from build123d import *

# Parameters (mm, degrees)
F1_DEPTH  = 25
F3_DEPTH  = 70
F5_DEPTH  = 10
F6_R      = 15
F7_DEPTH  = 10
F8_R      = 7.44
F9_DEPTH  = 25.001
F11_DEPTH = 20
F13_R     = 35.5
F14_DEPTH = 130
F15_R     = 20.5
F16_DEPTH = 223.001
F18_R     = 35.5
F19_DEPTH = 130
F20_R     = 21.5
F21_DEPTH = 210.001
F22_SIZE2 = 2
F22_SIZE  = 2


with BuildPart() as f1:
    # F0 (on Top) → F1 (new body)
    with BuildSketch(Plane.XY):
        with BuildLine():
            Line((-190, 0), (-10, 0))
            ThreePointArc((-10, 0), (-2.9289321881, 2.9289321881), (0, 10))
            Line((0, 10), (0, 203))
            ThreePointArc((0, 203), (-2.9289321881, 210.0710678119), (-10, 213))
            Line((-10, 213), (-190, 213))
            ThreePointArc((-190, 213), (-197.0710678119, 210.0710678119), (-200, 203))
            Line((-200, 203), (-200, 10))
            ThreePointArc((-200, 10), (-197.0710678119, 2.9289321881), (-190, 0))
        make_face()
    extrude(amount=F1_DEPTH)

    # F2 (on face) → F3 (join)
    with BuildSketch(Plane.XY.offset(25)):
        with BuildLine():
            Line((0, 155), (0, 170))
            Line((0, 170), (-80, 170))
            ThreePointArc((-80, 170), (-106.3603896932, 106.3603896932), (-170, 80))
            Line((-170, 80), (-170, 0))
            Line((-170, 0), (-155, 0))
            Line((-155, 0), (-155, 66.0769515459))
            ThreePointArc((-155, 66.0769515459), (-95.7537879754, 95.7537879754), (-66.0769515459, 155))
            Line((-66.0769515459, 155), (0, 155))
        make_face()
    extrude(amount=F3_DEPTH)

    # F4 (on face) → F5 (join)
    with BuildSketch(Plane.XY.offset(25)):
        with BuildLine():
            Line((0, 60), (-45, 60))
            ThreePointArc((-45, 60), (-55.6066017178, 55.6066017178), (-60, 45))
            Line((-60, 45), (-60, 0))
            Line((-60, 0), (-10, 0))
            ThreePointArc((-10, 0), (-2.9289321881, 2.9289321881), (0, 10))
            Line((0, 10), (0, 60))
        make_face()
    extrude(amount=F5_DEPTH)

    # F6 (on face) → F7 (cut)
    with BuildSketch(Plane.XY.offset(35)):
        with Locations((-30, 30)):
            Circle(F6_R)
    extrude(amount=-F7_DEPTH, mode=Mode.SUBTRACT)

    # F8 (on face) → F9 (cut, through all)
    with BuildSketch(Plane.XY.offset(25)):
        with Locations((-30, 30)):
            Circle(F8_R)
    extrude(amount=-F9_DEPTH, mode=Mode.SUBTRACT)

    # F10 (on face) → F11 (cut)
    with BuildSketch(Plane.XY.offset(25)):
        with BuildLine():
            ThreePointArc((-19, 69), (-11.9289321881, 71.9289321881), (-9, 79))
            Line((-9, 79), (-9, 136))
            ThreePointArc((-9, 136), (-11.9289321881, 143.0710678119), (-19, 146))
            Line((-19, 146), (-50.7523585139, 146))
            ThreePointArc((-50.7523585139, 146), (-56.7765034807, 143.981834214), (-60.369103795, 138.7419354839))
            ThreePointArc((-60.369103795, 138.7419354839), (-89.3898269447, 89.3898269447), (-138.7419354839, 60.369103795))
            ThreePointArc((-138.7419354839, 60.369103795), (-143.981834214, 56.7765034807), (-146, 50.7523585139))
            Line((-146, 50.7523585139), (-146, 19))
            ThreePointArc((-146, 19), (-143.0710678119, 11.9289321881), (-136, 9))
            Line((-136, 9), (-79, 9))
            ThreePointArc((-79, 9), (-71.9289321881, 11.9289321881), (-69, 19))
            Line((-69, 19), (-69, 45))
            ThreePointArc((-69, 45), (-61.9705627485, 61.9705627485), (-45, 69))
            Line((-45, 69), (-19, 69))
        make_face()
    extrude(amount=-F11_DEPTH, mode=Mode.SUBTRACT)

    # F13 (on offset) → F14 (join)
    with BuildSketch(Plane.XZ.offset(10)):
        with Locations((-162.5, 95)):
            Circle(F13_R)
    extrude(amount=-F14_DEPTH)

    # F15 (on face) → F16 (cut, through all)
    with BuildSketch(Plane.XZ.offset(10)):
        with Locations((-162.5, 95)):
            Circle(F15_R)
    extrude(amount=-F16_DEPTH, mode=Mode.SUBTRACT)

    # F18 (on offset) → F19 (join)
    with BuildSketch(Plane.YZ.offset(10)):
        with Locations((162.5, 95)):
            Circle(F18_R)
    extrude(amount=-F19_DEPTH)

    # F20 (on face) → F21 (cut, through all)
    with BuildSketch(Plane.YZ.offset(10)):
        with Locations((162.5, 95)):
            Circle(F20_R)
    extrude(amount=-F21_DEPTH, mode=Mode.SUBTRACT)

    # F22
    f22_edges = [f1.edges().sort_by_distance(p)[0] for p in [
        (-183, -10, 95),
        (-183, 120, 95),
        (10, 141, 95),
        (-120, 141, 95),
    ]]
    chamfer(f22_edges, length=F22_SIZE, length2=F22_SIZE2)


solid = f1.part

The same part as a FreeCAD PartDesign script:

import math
import FreeCAD as App
import Part
import Sketcher

V = App.Vector


def edges_at(feature, points):
    """Names of the edges that pass closest to the given points."""
    edges = feature.Shape.Edges
    near = lambda p: min(range(len(edges)), key=lambda i: edges[i].distToShape(Part.Vertex(*p))[0])
    return sorted({f"Edge{near(p) + 1}" for p in points})

doc = App.newDocument("Part")
body = doc.addObject("PartDesign::Body", "Body")

# Sketch on XY plane
sketch1 = body.newObject("Sketcher::SketchObject", "Sketch")
sketch1.AttachmentSupport = (doc.getObject("XY_Plane"), [""])
sketch1.MapMode = "FlatFace"
sketch1.addGeometry([
    Part.LineSegment(V(-190, 0, 0), V(-10, 0, 0)),  # 0
    Part.ArcOfCircle(Part.Circle(V(-10, 10, 0), V(0, 0, 1), 10), math.radians(-90), math.radians(0)),  # 1
    Part.LineSegment(V(0, 10, 0), V(0, 203, 0)),  # 2
    Part.ArcOfCircle(Part.Circle(V(-10, 203, 0), V(0, 0, 1), 10), math.radians(0), math.radians(90)),  # 3
    Part.LineSegment(V(-10, 213, 0), V(-190, 213, 0)),  # 4
    Part.ArcOfCircle(Part.Circle(V(-190, 203, 0), V(0, 0, 1), 10), math.radians(90), math.radians(180)),  # 5
    Part.LineSegment(V(-200, 203, 0), V(-200, 10, 0)),  # 6
    Part.ArcOfCircle(Part.Circle(V(-190, 10, 0), V(0, 0, 1), 10), math.radians(180), math.radians(270)),  # 7
], False)
sketch1.addConstraint([
    Sketcher.Constraint("Tangent", 0, 2, 1, 1),
    Sketcher.Constraint("Tangent", 1, 2, 2, 1),
    Sketcher.Constraint("Tangent", 2, 2, 3, 1),
    Sketcher.Constraint("Tangent", 3, 2, 4, 1),
    Sketcher.Constraint("Tangent", 4, 2, 5, 1),
    Sketcher.Constraint("Tangent", 5, 2, 6, 1),
    Sketcher.Constraint("Tangent", 6, 2, 7, 1),
    Sketcher.Constraint("Tangent", 7, 2, 0, 1),
    Sketcher.Constraint("Horizontal", 0),
    Sketcher.Constraint("Vertical", 2),
    Sketcher.Constraint("Horizontal", 4),
    Sketcher.Constraint("Vertical", 6),
    Sketcher.Constraint("Equal", 1, 3),
    Sketcher.Constraint("Equal", 3, 5),
    Sketcher.Constraint("Equal", 5, 7),
    Sketcher.Constraint("PointOnObject", 0, 2, -1),
    Sketcher.Constraint("PointOnObject", 1, 2, -2),
    Sketcher.Constraint("Radius", 1, 10.0),
    Sketcher.Constraint("DistanceX", 0, 1, 0, 2, 180.0),
    Sketcher.Constraint("DistanceY", 2, 1, 2, 2, 193.0),
])
pad1 = body.newObject("PartDesign::Pad", "Pad")
pad1.Profile = sketch1
pad1.Length = 25

# Sketch on XY plane
sketch2 = body.newObject("Sketcher::SketchObject", "Sketch001")
sketch2.AttachmentSupport = (doc.getObject("XY_Plane"), [""])
sketch2.MapMode = "FlatFace"
sketch2.AttachmentOffset = App.Placement(V(0, 0, 25), App.Rotation())
sketch2.addGeometry([
    Part.LineSegment(V(0, 155, 0), V(0, 170, 0)),  # 0
    Part.LineSegment(V(0, 170, 0), V(-80, 170, 0)),  # 1
    Part.ArcOfCircle(Part.Circle(V(-170, 170, 0), V(0, 0, 1), 90), math.radians(-90), math.radians(0)),  # 2
    Part.LineSegment(V(-170, 80, 0), V(-170, 0, 0)),  # 3
    Part.LineSegment(V(-170, 0, 0), V(-155, 0, 0)),  # 4
    Part.LineSegment(V(-155, 0, 0), V(-155, 66, 0)),  # 5
    Part.ArcOfCircle(Part.Circle(V(-170, 170, 0), V(0, 0, 1), 105), math.radians(-82), math.radians(-8)),  # 6
    Part.LineSegment(V(-66, 155, 0), V(0, 155, 0)),  # 7
], False)
sketch2.addConstraint([
    Sketcher.Constraint("Coincident", 0, 2, 1, 1),
    Sketcher.Constraint("Coincident", 1, 2, 2, 2),
    Sketcher.Constraint("Coincident", 2, 1, 3, 1),
    Sketcher.Constraint("Coincident", 3, 2, 4, 1),
    Sketcher.Constraint("Coincident", 4, 2, 5, 1),
    Sketcher.Constraint("Coincident", 5, 2, 6, 1),
    Sketcher.Constraint("Coincident", 6, 2, 7, 1),
    Sketcher.Constraint("Coincident", 7, 2, 0, 1),
    Sketcher.Constraint("Vertical", 0),
    Sketcher.Constraint("Horizontal", 1),
    Sketcher.Constraint("Vertical", 3),
    Sketcher.Constraint("Horizontal", 4),
    Sketcher.Constraint("Vertical", 5),
    Sketcher.Constraint("Horizontal", 7),
    Sketcher.Constraint("Coincident", 6, 3, 2, 3),
    Sketcher.Constraint("PointOnObject", 0, 2, -2),
    Sketcher.Constraint("PointOnObject", 3, 2, -1),
    Sketcher.Constraint("Horizontal", 6, 3, 0, 2),
    Sketcher.Constraint("Vertical", 6, 3, 2, 1),
    Sketcher.Constraint("Equal", 4, 0),
    Sketcher.Constraint("Equal", 1, 3),
    Sketcher.Constraint("Radius", 2, 90.0),
    Sketcher.Constraint("Radius", 6, 105.0),
    Sketcher.Constraint("DistanceX", 1, 2, 1, 1, 80.0),
    Sketcher.Constraint("DistanceX", 4, 1, 4, 2, 15.0),
])
pad2 = body.newObject("PartDesign::Pad", "Pad001")
pad2.Profile = sketch2
pad2.Length = 70

# Sketch on XY plane
sketch3 = body.newObject("Sketcher::SketchObject", "Sketch002")
sketch3.AttachmentSupport = (doc.getObject("XY_Plane"), [""])
sketch3.MapMode = "FlatFace"
sketch3.AttachmentOffset = App.Placement(V(0, 0, 25), App.Rotation())
sketch3.addGeometry([
    Part.LineSegment(V(0, 60, 0), V(-45, 60, 0)),  # 0
    Part.ArcOfCircle(Part.Circle(V(-45, 45, 0), V(0, 0, 1), 15), math.radians(90), math.radians(180)),  # 1
    Part.LineSegment(V(-60, 45, 0), V(-60, 0, 0)),  # 2
    Part.LineSegment(V(-60, 0, 0), V(-10, 0, 0)),  # 3
    Part.ArcOfCircle(Part.Circle(V(-10, 10, 0), V(0, 0, 1), 10), math.radians(-90), math.radians(0)),  # 4
    Part.LineSegment(V(0, 10, 0), V(0, 60, 0)),  # 5
], False)
sketch3.addConstraint([
    Sketcher.Constraint("Tangent", 0, 2, 1, 1),
    Sketcher.Constraint("Tangent", 1, 2, 2, 1),
    Sketcher.Constraint("Coincident", 2, 2, 3, 1),
    Sketcher.Constraint("Tangent", 3, 2, 4, 1),
    Sketcher.Constraint("Tangent", 4, 2, 5, 1),
    Sketcher.Constraint("Coincident", 5, 2, 0, 1),
    Sketcher.Constraint("Horizontal", 0),
    Sketcher.Constraint("Vertical", 2),
    Sketcher.Constraint("Horizontal", 3),
    Sketcher.Constraint("Vertical", 5),
    Sketcher.Constraint("PointOnObject", 2, 2, -1),
    Sketcher.Constraint("PointOnObject", 4, 2, -2),
    Sketcher.Constraint("Equal", 0, 2),
    Sketcher.Constraint("Radius", 1, 15.0),
    Sketcher.Constraint("Radius", 4, 10.0),
    Sketcher.Constraint("DistanceX", 0, 2, 0, 1, 45.0),
])
pad3 = body.newObject("PartDesign::Pad", "Pad002")
pad3.Profile = sketch3
pad3.Length = 10

# Sketch on XY plane
sketch4 = body.newObject("Sketcher::SketchObject", "Sketch003")
sketch4.AttachmentSupport = (doc.getObject("XY_Plane"), [""])
sketch4.MapMode = "FlatFace"
sketch4.AttachmentOffset = App.Placement(V(0, 0, 35), App.Rotation())
sketch4.addGeometry(Part.Circle(V(-30, 30, 0), V(0, 0, 1), 15), False)
sketch4.addConstraint([
    Sketcher.Constraint("Diameter", 0, 30.0),
    Sketcher.Constraint("DistanceX", 0, 3, -1, 1, 30.0),
    Sketcher.Constraint("DistanceY", -1, 1, 0, 3, 30.0),
])
pocket1 = body.newObject("PartDesign::Pocket", "Pocket")
pocket1.Profile = sketch4
pocket1.Length = 10

# Sketch on XY plane
sketch5 = body.newObject("Sketcher::SketchObject", "Sketch004")
sketch5.AttachmentSupport = (doc.getObject("XY_Plane"), [""])
sketch5.MapMode = "FlatFace"
sketch5.AttachmentOffset = App.Placement(V(0, 0, 25), App.Rotation())
sketch5.addGeometry(Part.Circle(V(-30, 30, 0), V(0, 0, 1), 7), False)
sketch5.addConstraint([
    Sketcher.Constraint("Diameter", 0, 14.88),
    Sketcher.Constraint("DistanceX", 0, 3, -1, 1, 30.0),
    Sketcher.Constraint("DistanceY", -1, 1, 0, 3, 30.0),
])
pocket2 = body.newObject("PartDesign::Pocket", "Pocket001")
pocket2.Profile = sketch5
pocket2.Type = "ThroughAll"

# Sketch on XY plane
sketch6 = body.newObject("Sketcher::SketchObject", "Sketch005")
sketch6.AttachmentSupport = (doc.getObject("XY_Plane"), [""])
sketch6.MapMode = "FlatFace"
sketch6.AttachmentOffset = App.Placement(V(0, 0, 25), App.Rotation())
sketch6.addGeometry([
    Part.ArcOfCircle(Part.Circle(V(-19, 79, 0), V(0, 0, 1), 10), math.radians(-90), math.radians(0)),  # 0
    Part.LineSegment(V(-9, 79, 0), V(-9, 136, 0)),  # 1
    Part.ArcOfCircle(Part.Circle(V(-19, 136, 0), V(0, 0, 1), 10), math.radians(0), math.radians(90)),  # 2
    Part.LineSegment(V(-19, 146, 0), V(-51, 146, 0)),  # 3
    Part.ArcOfCircle(Part.Circle(V(-51, 136, 0), V(0, 0, 1), 10), math.radians(90), math.radians(164)),  # 4
    Part.ArcOfCircle(Part.Circle(V(-170, 170, 0), V(0, 0, 1), 114), math.radians(-74), math.radians(-16)),  # 5
    Part.ArcOfCircle(Part.Circle(V(-136, 51, 0), V(0, 0, 1), 10), math.radians(106), math.radians(180)),  # 6
    Part.LineSegment(V(-146, 51, 0), V(-146, 19, 0)),  # 7
    Part.ArcOfCircle(Part.Circle(V(-136, 19, 0), V(0, 0, 1), 10), math.radians(180), math.radians(270)),  # 8
    Part.LineSegment(V(-136, 9, 0), V(-79, 9, 0)),  # 9
    Part.ArcOfCircle(Part.Circle(V(-79, 19, 0), V(0, 0, 1), 10), math.radians(-90), math.radians(0)),  # 10
    Part.LineSegment(V(-69, 19, 0), V(-69, 45, 0)),  # 11
    Part.ArcOfCircle(Part.Circle(V(-45, 45, 0), V(0, 0, 1), 24), math.radians(90), math.radians(180)),  # 12
    Part.LineSegment(V(-45, 69, 0), V(-19, 69, 0)),  # 13
], False)
sketch6.addConstraint([
    Sketcher.Constraint("Tangent", 0, 2, 1, 1),
    Sketcher.Constraint("Tangent", 1, 2, 2, 1),
    Sketcher.Constraint("Tangent", 2, 2, 3, 1),
    Sketcher.Constraint("Tangent", 3, 2, 4, 1),
    Sketcher.Constraint("Tangent", 4, 2, 5, 2),
    Sketcher.Constraint("Tangent", 5, 1, 6, 1),
    Sketcher.Constraint("Tangent", 6, 2, 7, 1),
    Sketcher.Constraint("Tangent", 7, 2, 8, 1),
    Sketcher.Constraint("Tangent", 8, 2, 9, 1),
    Sketcher.Constraint("Tangent", 9, 2, 10, 1),
    Sketcher.Constraint("Tangent", 10, 2, 11, 1),
    Sketcher.Constraint("Tangent", 11, 2, 12, 2),
    Sketcher.Constraint("Tangent", 12, 1, 13, 1),
    Sketcher.Constraint("Tangent", 13, 2, 0, 1),
    Sketcher.Constraint("Vertical", 1),
    Sketcher.Constraint("Horizontal", 3),
    Sketcher.Constraint("Vertical", 7),
    Sketcher.Constraint("Horizontal", 9),
    Sketcher.Constraint("Vertical", 11),
    Sketcher.Constraint("Horizontal", 13),
    Sketcher.Constraint("Equal", 0, 2),
    Sketcher.Constraint("Equal", 2, 4),
    Sketcher.Constraint("Equal", 4, 6),
    Sketcher.Constraint("Equal", 6, 8),
    Sketcher.Constraint("Equal", 8, 10),
    Sketcher.Constraint("Equal", 9, 1),
    Sketcher.Constraint("Equal", 3, 7),
    Sketcher.Constraint("Equal", 13, 11),
    Sketcher.Constraint("Radius", 0, 10.0),
    Sketcher.Constraint("Radius", 5, 114.0),
    Sketcher.Constraint("Radius", 12, 24.0),
    Sketcher.Constraint("DistanceX", 9, 1, 9, 2, 57.0),
    Sketcher.Constraint("DistanceX", 13, 1, 13, 2, 26.0),
    Sketcher.Constraint("DistanceX", 0, 3, -1, 1, 19.0),
    Sketcher.Constraint("DistanceY", -1, 1, 0, 3, 79.0),
    Sketcher.Constraint("DistanceX", 5, 3, -1, 1, 170.0),
])
pocket3 = body.newObject("PartDesign::Pocket", "Pocket002")
pocket3.Profile = sketch6
pocket3.Length = 20

# Sketch on XZ plane
sketch7 = body.newObject("Sketcher::SketchObject", "Sketch006")
sketch7.AttachmentSupport = (doc.getObject("XZ_Plane"), [""])
sketch7.MapMode = "FlatFace"
sketch7.AttachmentOffset = App.Placement(V(0, 0, 10), App.Rotation())
sketch7.addGeometry(Part.Circle(V(-162, 95, 0), V(0, 0, 1), 36), False)
sketch7.addConstraint([
    Sketcher.Constraint("Diameter", 0, 71.0),
    Sketcher.Constraint("DistanceY", -1, 1, 0, 3, 95.0),
    Sketcher.Constraint("DistanceX", 0, 3, -1, 1, 162.5),
])
pad4 = body.newObject("PartDesign::Pad", "Pad003")
pad4.Profile = sketch7
pad4.Length = 130
pad4.Reversed = True

# Sketch on XZ plane
sketch8 = body.newObject("Sketcher::SketchObject", "Sketch007")
sketch8.AttachmentSupport = (doc.getObject("XZ_Plane"), [""])
sketch8.MapMode = "FlatFace"
sketch8.AttachmentOffset = App.Placement(V(0, 0, 10), App.Rotation())
sketch8.addGeometry(Part.Circle(V(-162, 95, 0), V(0, 0, 1), 20), False)
sketch8.addConstraint([
    Sketcher.Constraint("Diameter", 0, 41.0),
    Sketcher.Constraint("DistanceY", -1, 1, 0, 3, 95.0),
    Sketcher.Constraint("DistanceX", 0, 3, -1, 1, 162.5),
])
pocket4 = body.newObject("PartDesign::Pocket", "Pocket003")
pocket4.Profile = sketch8
pocket4.Type = "ThroughAll"

# Sketch on YZ plane
sketch9 = body.newObject("Sketcher::SketchObject", "Sketch008")
sketch9.AttachmentSupport = (doc.getObject("YZ_Plane"), [""])
sketch9.MapMode = "FlatFace"
sketch9.AttachmentOffset = App.Placement(V(0, 0, 10), App.Rotation())
sketch9.addGeometry(Part.Circle(V(162, 95, 0), V(0, 0, 1), 36), False)
sketch9.addConstraint([
    Sketcher.Constraint("Diameter", 0, 71.0),
    Sketcher.Constraint("DistanceY", -1, 1, 0, 3, 95.0),
    Sketcher.Constraint("DistanceX", -1, 1, 0, 3, 162.5),
])
pad5 = body.newObject("PartDesign::Pad", "Pad004")
pad5.Profile = sketch9
pad5.Length = 130
pad5.Reversed = True

# Sketch on YZ plane
sketch10 = body.newObject("Sketcher::SketchObject", "Sketch009")
sketch10.AttachmentSupport = (doc.getObject("YZ_Plane"), [""])
sketch10.MapMode = "FlatFace"
sketch10.AttachmentOffset = App.Placement(V(0, 0, 10), App.Rotation())
sketch10.addGeometry(Part.Circle(V(162, 95, 0), V(0, 0, 1), 22), False)
sketch10.addConstraint([
    Sketcher.Constraint("Diameter", 0, 43.0),
    Sketcher.Constraint("DistanceY", -1, 1, 0, 3, 95.0),
    Sketcher.Constraint("DistanceX", -1, 1, 0, 3, 162.5),
])
pocket5 = body.newObject("PartDesign::Pocket", "Pocket004")
pocket5.Profile = sketch10
pocket5.Type = "ThroughAll"
doc.recompute()

chamfer = body.newObject("PartDesign::Chamfer", "Chamfer")
chamfer.Base = (pocket5, edges_at(pocket5, [
    (-183, -10, 95),
    (-183, 120, 95),
    (10, 141, 95),
    (-120, 141, 95),
]))
chamfer.ChamferType = "Two distances"
chamfer.Size = 2
chamfer.Size2 = 2

doc.recompute()
